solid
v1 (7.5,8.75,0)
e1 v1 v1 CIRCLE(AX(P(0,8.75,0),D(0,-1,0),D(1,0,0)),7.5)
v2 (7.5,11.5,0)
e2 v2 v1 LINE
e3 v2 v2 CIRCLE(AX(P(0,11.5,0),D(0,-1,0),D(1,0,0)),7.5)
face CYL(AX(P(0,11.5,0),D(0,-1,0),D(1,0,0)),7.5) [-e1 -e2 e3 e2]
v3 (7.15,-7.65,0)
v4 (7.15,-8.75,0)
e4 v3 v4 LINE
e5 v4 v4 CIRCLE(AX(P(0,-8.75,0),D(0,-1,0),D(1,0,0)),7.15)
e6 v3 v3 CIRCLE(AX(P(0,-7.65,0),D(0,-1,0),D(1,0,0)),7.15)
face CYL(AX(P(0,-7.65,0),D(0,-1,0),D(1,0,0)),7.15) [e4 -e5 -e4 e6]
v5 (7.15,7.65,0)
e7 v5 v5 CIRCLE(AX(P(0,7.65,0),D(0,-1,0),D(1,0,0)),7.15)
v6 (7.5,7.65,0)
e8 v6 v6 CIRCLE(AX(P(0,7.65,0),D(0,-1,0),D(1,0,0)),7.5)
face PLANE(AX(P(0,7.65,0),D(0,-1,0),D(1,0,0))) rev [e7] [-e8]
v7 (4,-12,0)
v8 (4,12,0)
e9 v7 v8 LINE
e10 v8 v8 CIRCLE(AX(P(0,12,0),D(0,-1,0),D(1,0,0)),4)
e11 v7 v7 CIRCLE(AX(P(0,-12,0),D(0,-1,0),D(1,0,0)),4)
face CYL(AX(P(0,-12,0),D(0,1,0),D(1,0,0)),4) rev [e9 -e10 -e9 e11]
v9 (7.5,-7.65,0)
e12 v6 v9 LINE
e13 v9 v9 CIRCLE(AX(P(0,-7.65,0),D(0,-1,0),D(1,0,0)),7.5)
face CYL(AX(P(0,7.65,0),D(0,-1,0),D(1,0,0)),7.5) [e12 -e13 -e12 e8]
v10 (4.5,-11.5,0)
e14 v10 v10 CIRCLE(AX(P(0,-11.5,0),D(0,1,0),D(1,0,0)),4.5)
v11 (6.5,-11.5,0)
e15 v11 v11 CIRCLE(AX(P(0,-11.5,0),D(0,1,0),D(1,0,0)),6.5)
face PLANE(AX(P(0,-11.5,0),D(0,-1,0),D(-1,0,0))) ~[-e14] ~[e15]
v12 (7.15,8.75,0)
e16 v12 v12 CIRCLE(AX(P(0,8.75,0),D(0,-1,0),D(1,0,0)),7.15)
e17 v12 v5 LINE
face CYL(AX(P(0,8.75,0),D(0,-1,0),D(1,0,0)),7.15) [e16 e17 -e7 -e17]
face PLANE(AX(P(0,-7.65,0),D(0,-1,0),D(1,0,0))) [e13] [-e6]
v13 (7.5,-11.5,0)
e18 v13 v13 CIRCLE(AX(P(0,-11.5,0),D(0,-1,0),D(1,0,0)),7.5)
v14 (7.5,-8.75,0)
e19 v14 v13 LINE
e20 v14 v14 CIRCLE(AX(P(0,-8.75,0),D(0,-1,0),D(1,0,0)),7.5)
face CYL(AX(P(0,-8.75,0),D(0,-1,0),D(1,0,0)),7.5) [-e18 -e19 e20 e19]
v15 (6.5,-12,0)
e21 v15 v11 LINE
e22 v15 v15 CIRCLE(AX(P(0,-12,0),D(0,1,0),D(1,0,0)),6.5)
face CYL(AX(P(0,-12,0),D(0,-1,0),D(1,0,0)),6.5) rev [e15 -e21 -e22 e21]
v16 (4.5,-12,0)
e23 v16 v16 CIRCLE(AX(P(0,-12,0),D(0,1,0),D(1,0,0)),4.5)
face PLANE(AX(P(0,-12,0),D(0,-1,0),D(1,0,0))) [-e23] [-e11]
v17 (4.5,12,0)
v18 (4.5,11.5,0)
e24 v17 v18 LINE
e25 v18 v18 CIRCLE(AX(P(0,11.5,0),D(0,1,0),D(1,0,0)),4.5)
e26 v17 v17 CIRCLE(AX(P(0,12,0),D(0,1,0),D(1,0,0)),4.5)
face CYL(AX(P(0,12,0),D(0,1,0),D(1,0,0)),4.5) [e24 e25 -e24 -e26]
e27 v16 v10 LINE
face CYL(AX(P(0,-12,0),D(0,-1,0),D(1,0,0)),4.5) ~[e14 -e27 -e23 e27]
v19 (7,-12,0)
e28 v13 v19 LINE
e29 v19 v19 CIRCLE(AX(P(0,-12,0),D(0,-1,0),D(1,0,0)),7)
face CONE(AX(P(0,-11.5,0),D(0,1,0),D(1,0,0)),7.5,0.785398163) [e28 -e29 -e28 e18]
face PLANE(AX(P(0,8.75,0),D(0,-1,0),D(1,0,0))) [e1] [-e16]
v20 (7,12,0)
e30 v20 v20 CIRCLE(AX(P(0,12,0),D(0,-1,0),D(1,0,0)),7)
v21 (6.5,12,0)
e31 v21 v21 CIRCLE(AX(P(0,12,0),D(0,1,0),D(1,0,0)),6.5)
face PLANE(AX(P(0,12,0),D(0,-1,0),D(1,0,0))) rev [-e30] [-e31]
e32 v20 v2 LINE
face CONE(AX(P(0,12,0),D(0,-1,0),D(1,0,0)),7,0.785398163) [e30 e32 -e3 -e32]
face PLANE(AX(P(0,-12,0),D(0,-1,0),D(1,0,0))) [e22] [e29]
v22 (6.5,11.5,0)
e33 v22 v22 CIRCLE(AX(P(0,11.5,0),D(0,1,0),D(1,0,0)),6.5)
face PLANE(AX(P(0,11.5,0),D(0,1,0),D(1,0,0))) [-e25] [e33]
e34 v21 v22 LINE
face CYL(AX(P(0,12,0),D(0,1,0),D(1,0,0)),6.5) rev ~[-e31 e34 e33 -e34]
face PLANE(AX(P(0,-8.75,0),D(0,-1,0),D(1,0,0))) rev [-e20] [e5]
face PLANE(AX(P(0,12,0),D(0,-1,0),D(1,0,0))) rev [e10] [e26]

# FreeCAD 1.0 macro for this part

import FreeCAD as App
import Part
import Sketcher

V = App.Vector


def add_polygon(sketch, points):
    """Adds a closed chain of lines whose ends are joined by coincident constraints."""
    first, n = sketch.GeometryCount, len(points)
    for a, b in zip(points, points[1:] + points[:1]):
        sketch.addGeometry(Part.LineSegment(App.Vector(*a, 0), App.Vector(*b, 0)), False)
    for i in range(n):
        sketch.addConstraint(Sketcher.Constraint("Coincident", first + i, 2, first + (i + 1) % n, 1))

doc = App.newDocument("Part")
params = doc.addObject("Spreadsheet::Sheet", "Params")
for row, (alias, value) in enumerate([
    ("sketch1_width", "3 mm"),
    ("sketch1_height", "24 mm"),
    ("sketch1_height2", "1.1 mm"),
    ("sketch1_height3", "15.3 mm"),
    ("sketch1_width2", "0.35 mm"),
    ("revolution_angle", "360 deg"),
    ("sketch2_diameter", "13 mm"),
    ("sketch2_diameter2", "9 mm"),
    ("pocket1_length", "0.5 mm"),
], start=1):
    params.set(f"A{row}", alias)
    params.set(f"B{row}", "=" + value)
    params.setAlias(f"B{row}", alias)

body = doc.addObject("PartDesign::Body", "Body")

sketch1 = doc.addObject("Sketcher::SketchObject", "Sketch")
body.addObject(sketch1)
sketch1.AttachmentSupport = (doc.XY_Plane, [""])
sketch1.MapMode = "FlatFace"
add_polygon(sketch1, [(4, 12), (4, -12), (7, -12), (7.5, -11.5), (7.5, -8.75), (7.15, -8.75), (7.15, -7.65), (7.5, -7.65), (7.5, 7.65), (7.15, 7.65), (7.15, 8.75), (7.5, 8.75), (7.5, 11.5), (7, 12)])
sketch1.addConstraint([
    Sketcher.Constraint("Vertical", 0),
    Sketcher.Constraint("Horizontal", 1),
    Sketcher.Constraint("Vertical", 3),
    Sketcher.Constraint("Horizontal", 4),
    Sketcher.Constraint("Vertical", 5),
    Sketcher.Constraint("Horizontal", 6),
    Sketcher.Constraint("Vertical", 7),
    Sketcher.Constraint("Horizontal", 8),
    Sketcher.Constraint("Vertical", 9),
    Sketcher.Constraint("Horizontal", 10),
    Sketcher.Constraint("Vertical", 11),
    Sketcher.Constraint("Horizontal", 13),
    Sketcher.Constraint("Symmetric", 5, 2, 8, 2, -1),
    Sketcher.Constraint("Symmetric", 3, 2, 10, 2, -1),
    Sketcher.Constraint("Symmetric", 1, 2, 12, 2, -1),
    Sketcher.Constraint("Perpendicular", 2, 12),
    Sketcher.Constraint("Vertical", 3, 2, 6, 2),
    Sketcher.Constraint("Equal", 3, 11),
    Sketcher.Constraint("DistanceX", 1, 1, 1, 2, 3.0),
    Sketcher.Constraint("DistanceY", 0, 2, 0, 1, 24.0),
    Sketcher.Constraint("DistanceY", 5, 1, 5, 2, 1.1),
    Sketcher.Constraint("DistanceY", 7, 1, 7, 2, 15.3),
    Sketcher.Constraint("DistanceX", -1, 1, 0, 2, 4.0),
    Sketcher.Constraint("DistanceX", 4, 2, 4, 1, 0.35),
    Sketcher.Constraint("DistanceY", 3, 1, 3, 2, 2.75),
])
sketch1.setExpression("Constraints[32]", "Params.sketch1_width")
sketch1.setExpression("Constraints[33]", "Params.sketch1_height")
sketch1.setExpression("Constraints[34]", "Params.sketch1_height2")
sketch1.setExpression("Constraints[35]", "Params.sketch1_height3")
sketch1.setExpression("Constraints[37]", "Params.sketch1_width2")
revolution = doc.addObject("PartDesign::Revolution", "Revolution")
body.addObject(revolution)
revolution.Profile = sketch1
revolution.ReferenceAxis = (sketch1, ["V_Axis"])
revolution.setExpression("Angle", "Params.revolution_angle")

sketch2 = doc.addObject("Sketcher::SketchObject", "Sketch001")
body.addObject(sketch2)
sketch2.AttachmentSupport = (doc.XZ_Plane, [""])
sketch2.MapMode = "FlatFace"
sketch2.AttachmentOffset = App.Placement(V(0, 0, -12), App.Rotation())
sketch2.addGeometry([
    Part.Circle(V(0, 0, 0), V(0, 0, 1), 6.5),
    Part.Circle(V(0, 0, 0), V(0, 0, 1), 4.5),
], False)
sketch2.addConstraint([
    Sketcher.Constraint("Coincident", 0, 3, -1, 1),
    Sketcher.Constraint("Coincident", 1, 3, -1, 1),
    Sketcher.Constraint("Diameter", 0, 13.0),
    Sketcher.Constraint("Diameter", 1, 9.0),
])
sketch2.setExpression("Constraints[2]", "Params.sketch2_diameter")
sketch2.setExpression("Constraints[3]", "Params.sketch2_diameter2")
pocket1 = doc.addObject("PartDesign::Pocket", "Pocket")
body.addObject(pocket1)
pocket1.Profile = sketch2
pocket1.setExpression("Length", "Params.pocket1_length")
pocket1.Reversed = True
doc.recompute()

mirrored = doc.addObject("PartDesign::Mirrored", "Mirrored")
body.addObject(mirrored)
mirrored.Originals = [pocket1]
mirrored.MirrorPlane = (doc.XZ_Plane, [""])
body.Tip = mirrored

doc.recompute()
